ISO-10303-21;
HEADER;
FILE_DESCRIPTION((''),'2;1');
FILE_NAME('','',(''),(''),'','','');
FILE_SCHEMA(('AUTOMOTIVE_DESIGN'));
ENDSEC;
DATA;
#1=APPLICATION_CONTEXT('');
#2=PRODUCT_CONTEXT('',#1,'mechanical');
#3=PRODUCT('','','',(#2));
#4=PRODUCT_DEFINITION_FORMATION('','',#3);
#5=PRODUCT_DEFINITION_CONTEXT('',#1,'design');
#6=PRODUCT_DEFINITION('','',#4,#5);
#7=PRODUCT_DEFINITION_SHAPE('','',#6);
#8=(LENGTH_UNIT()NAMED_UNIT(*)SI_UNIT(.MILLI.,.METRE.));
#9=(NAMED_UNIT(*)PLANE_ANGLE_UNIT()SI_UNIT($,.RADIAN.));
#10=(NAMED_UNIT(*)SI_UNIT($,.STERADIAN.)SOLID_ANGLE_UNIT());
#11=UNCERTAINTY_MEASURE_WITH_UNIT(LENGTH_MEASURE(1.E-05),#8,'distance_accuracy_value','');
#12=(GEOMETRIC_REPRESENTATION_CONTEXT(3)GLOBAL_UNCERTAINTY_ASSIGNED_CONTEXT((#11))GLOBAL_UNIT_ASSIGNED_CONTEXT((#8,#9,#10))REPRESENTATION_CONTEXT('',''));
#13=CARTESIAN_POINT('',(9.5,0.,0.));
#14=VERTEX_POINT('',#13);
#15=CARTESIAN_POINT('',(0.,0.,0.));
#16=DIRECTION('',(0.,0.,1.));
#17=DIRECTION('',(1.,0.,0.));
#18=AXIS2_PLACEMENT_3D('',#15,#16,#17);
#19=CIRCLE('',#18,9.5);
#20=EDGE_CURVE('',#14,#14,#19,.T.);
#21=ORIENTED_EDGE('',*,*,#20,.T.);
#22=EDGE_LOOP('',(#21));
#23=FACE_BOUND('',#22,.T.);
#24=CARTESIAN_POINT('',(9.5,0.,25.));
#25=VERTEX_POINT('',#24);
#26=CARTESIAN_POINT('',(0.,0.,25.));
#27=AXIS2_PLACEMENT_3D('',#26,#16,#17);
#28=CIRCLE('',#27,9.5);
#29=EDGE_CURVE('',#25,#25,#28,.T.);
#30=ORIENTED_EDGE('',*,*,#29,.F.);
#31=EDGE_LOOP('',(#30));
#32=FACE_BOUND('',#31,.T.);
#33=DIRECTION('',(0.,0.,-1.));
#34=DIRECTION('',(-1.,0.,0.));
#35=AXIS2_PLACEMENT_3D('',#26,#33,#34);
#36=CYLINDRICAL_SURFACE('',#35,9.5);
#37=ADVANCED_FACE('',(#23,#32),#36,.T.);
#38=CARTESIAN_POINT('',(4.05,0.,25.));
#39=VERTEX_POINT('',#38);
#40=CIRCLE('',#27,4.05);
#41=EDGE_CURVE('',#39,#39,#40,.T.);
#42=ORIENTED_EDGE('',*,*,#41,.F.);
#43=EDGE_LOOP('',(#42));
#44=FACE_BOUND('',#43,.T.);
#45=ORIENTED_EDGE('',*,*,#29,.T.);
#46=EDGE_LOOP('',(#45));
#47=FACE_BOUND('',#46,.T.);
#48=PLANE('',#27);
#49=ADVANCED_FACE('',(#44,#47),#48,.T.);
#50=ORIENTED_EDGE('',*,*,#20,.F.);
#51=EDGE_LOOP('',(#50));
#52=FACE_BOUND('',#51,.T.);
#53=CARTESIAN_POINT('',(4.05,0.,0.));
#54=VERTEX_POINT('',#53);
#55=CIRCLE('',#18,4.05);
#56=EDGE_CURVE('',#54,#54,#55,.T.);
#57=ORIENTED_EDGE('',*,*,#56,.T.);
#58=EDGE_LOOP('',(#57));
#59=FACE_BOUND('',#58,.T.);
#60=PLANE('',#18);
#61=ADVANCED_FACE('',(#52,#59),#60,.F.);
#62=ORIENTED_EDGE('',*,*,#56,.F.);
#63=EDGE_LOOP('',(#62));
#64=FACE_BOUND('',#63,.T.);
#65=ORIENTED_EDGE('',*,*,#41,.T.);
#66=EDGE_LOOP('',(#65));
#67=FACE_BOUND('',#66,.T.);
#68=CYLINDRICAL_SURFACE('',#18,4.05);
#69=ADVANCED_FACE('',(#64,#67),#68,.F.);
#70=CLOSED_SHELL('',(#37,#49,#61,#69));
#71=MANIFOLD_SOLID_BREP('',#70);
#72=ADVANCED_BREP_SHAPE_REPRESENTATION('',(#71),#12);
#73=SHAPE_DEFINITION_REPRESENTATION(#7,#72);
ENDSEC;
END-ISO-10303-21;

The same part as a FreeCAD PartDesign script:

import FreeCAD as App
import Part
import Sketcher
from FreeCAD import Vector

doc = App.newDocument("Part")
body = doc.addObject("PartDesign::Body", "Body")

# Sketch on XY plane
sketch1 = body.newObject("Sketcher::SketchObject", "Sketch")
sketch1.AttachmentSupport = (doc.getObject("XY_Plane"), [""])
sketch1.MapMode = "FlatFace"
sketch1.addGeometry(Part.Circle(Vector(0, 0, 0), Vector(0, 0, 1), 9.5), False)
sketch1.addConstraint([
    Sketcher.Constraint("Coincident", 0, 3, -1, 1),
    Sketcher.Constraint("Diameter", 0, 19.0),
])
pad1 = body.newObject("PartDesign::Pad", "Pad")
pad1.Profile = sketch1
pad1.Length = 25

# Sketch on XY plane
sketch2 = body.newObject("Sketcher::SketchObject", "Sketch001")
sketch2.AttachmentSupport = (doc.getObject("XY_Plane"), [""])
sketch2.MapMode = "FlatFace"
sketch2.AttachmentOffset = App.Placement(Vector(0, 0, 25), App.Rotation())
sketch2.addGeometry(Part.Circle(Vector(0, 0, 0), Vector(0, 0, 1), 4.05), False)
sketch2.addConstraint([
    Sketcher.Constraint("Coincident", 0, 3, -1, 1),
    Sketcher.Constraint("Diameter", 0, 8.1),
])
pocket1 = body.newObject("PartDesign::Pocket", "Pocket")
pocket1.Profile = sketch2
pocket1.Type = "ThroughAll"

doc.recompute()
